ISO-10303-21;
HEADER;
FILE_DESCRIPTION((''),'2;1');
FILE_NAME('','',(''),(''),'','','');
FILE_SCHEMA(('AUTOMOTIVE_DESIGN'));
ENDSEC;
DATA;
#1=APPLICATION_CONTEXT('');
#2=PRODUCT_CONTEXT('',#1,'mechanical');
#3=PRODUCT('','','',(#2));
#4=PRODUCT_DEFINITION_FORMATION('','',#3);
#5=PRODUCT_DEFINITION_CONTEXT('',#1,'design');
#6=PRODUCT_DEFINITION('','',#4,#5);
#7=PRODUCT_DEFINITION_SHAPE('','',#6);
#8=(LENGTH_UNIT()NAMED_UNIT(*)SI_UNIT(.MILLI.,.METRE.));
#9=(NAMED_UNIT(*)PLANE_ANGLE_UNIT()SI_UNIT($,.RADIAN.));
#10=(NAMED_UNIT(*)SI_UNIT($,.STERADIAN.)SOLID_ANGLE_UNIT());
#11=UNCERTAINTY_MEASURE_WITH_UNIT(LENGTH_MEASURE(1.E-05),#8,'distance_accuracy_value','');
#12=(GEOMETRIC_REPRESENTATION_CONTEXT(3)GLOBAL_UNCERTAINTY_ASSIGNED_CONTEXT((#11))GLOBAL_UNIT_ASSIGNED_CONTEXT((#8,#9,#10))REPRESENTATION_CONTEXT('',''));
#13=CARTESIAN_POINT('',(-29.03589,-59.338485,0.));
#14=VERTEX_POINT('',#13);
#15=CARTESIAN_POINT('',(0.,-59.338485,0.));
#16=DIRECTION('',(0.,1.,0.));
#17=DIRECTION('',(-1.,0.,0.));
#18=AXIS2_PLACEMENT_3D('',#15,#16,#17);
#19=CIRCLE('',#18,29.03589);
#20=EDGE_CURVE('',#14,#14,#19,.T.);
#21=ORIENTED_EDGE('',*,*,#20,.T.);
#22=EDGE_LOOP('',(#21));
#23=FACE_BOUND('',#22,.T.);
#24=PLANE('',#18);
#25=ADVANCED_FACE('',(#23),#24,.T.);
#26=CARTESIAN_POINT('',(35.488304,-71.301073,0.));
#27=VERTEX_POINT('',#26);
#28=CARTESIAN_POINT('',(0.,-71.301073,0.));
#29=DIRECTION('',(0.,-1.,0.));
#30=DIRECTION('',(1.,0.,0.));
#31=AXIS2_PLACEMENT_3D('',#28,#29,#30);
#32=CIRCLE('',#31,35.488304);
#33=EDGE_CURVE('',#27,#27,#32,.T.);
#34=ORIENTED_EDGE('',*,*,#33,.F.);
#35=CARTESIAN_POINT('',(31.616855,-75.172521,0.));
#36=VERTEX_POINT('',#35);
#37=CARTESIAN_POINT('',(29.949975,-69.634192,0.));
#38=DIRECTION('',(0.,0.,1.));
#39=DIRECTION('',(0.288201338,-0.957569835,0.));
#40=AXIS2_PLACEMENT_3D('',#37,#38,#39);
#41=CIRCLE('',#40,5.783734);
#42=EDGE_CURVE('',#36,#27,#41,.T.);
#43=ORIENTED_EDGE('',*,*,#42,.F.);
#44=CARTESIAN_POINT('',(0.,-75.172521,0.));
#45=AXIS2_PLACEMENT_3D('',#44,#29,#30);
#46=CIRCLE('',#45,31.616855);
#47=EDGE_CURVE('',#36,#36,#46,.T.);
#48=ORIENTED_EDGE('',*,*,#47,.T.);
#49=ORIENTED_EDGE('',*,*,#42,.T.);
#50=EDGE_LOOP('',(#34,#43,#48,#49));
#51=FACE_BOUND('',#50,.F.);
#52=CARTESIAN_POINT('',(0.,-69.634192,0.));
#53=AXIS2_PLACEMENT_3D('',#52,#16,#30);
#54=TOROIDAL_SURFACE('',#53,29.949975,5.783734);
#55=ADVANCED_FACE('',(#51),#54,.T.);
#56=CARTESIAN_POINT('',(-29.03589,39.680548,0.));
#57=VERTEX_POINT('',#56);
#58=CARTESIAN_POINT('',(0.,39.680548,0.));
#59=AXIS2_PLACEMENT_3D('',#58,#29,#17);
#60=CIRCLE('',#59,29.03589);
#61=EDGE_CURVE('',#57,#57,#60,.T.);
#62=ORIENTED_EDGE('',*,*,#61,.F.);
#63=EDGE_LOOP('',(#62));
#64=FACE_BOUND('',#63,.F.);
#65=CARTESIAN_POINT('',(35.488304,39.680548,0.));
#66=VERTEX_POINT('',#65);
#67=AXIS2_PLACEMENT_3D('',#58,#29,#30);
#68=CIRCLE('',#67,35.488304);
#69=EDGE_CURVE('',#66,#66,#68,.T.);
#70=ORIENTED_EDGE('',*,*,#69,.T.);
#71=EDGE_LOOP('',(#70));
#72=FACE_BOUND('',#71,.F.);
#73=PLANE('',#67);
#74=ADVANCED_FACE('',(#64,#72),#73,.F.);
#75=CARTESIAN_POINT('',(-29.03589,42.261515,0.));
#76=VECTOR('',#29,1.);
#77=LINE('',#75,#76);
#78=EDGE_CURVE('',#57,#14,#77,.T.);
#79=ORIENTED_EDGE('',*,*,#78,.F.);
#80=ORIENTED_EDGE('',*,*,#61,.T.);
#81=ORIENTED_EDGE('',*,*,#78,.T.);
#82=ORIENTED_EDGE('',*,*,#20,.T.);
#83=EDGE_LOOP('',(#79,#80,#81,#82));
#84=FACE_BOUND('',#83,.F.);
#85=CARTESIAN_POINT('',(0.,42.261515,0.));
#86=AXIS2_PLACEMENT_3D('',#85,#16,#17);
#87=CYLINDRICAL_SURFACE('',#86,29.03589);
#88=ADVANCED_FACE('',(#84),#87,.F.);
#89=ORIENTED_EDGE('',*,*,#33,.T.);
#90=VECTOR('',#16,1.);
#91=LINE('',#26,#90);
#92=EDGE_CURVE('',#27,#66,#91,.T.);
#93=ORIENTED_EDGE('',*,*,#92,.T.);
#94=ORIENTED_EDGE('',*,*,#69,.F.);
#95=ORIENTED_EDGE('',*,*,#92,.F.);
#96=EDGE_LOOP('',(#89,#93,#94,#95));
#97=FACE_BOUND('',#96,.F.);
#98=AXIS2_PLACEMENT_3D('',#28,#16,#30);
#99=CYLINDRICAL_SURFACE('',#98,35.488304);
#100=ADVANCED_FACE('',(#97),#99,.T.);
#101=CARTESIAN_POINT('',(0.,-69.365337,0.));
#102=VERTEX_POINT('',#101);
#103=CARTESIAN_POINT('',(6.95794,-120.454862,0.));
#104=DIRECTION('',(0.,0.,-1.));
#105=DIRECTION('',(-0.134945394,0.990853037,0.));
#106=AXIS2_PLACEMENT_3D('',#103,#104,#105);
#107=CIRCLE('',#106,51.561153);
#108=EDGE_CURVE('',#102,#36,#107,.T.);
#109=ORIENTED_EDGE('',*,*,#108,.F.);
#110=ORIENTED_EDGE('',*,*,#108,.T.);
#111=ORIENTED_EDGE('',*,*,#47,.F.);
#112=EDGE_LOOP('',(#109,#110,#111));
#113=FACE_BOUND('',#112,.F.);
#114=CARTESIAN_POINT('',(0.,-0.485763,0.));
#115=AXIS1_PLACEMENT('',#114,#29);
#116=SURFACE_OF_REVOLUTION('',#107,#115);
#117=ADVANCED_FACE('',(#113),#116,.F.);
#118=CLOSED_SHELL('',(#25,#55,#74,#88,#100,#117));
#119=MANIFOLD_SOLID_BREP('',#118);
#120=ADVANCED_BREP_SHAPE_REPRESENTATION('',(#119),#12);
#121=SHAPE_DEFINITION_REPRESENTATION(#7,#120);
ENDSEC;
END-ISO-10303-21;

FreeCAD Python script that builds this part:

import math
import FreeCAD as App
import Part
import Sketcher
Q = App.Units.Quantity

doc = App.newDocument("Part")
body = doc.addObject("PartDesign::Body", "Body")

sketch1 = doc.addObject("Sketcher::SketchObject", "Sketch")
body.addObject(sketch1)
sketch1.AttachmentSupport = (doc.XY_Plane, [""])
sketch1.MapMode = "FlatFace"
sketch1.addGeometry([
    Part.LineSegment(App.Vector(0, 42.3, 0), App.Vector(0, -69.4, 0)),
    Part.ArcOfCircle(Part.Circle(App.Vector(7, -120.5, 0), App.Vector(0, 0, 1), 51.6), math.radians(61), math.radians(98)),
    Part.ArcOfCircle(Part.Circle(App.Vector(29.9, -69.6, 0), App.Vector(0, 0, 1), 5.8), math.radians(-73), math.radians(-17)),
    Part.LineSegment(App.Vector(35.5, -71.3, 0), App.Vector(35.5, 39.7, 0)),
    Part.LineSegment(App.Vector(35.5, 39.7, 0), App.Vector(29, 39.7, 0)),
    Part.LineSegment(App.Vector(29, 39.7, 0), App.Vector(29, 42.3, 0)),
    Part.LineSegment(App.Vector(29, 42.3, 0), App.Vector(0, 42.3, 0)),
], False)
sketch1.addConstraint([
    Sketcher.Constraint("Coincident", 0, 2, 1, 2),
    Sketcher.Constraint("Coincident", 1, 1, 2, 1),
    Sketcher.Constraint("Coincident", 2, 2, 3, 1),
    Sketcher.Constraint("Coincident", 3, 2, 4, 1),
    Sketcher.Constraint("Coincident", 4, 2, 5, 1),
    Sketcher.Constraint("Coincident", 5, 2, 6, 1),
    Sketcher.Constraint("Coincident", 6, 2, 0, 1),
    Sketcher.Constraint("Vertical", 0),
    Sketcher.Constraint("Vertical", 3),
    Sketcher.Constraint("Horizontal", 4),
    Sketcher.Constraint("Vertical", 5),
    Sketcher.Constraint("Horizontal", 6),
    Sketcher.Constraint("PointOnObject", 0, 2, -2),
    Sketcher.Constraint("Radius", 1, 51.561153),
    Sketcher.Constraint("Radius", 2, 5.783734),
    Sketcher.Constraint("DistanceX", 6, 2, 6, 1, 29.03589),
    Sketcher.Constraint("DistanceY", 0, 2, 0, 1, 111.626852),
    Sketcher.Constraint("DistanceY", 3, 1, 3, 2, 110.981621),
    Sketcher.Constraint("DistanceX", 4, 2, 4, 1, 6.452414),
    Sketcher.Constraint("DistanceY", 5, 1, 5, 2, 2.580967),
    Sketcher.Constraint("DistanceX", -1, 1, 1, 3, 6.95794),
    Sketcher.Constraint("DistanceY", 1, 3, -1, 1, 120.454862),
    Sketcher.Constraint("DistanceY", 2, 3, -1, 1, 69.634192),
])
revolution = doc.addObject("PartDesign::Revolution", "Revolution")
body.addObject(revolution)
revolution.Profile = sketch1
revolution.ReferenceAxis = (sketch1, ["V_Axis"])
revolution.Angle = 360

sketch2 = doc.addObject("Sketcher::SketchObject", "Sketch001")
body.addObject(sketch2)
sketch2.AttachmentSupport = (doc.XZ_Plane, [""])
sketch2.MapMode = "FlatFace"
sketch2.AttachmentOffset = App.Placement(App.Vector(0, 0, -42.261515), App.Rotation())
sketch2.addGeometry(Part.Circle(App.Vector(0, 0, 0), App.Vector(0, 0, 1), 29), False)
sketch2.addConstraint([
    Sketcher.Constraint("Coincident", 0, 3, -1, 1),
    Sketcher.Constraint("Diameter", 0, 58.07178),
])
pocket1 = doc.addObject("PartDesign::Pocket", "Pocket")
body.addObject(pocket1)
pocket1.Profile = sketch2
pocket1.Length = Q("4 in")
pocket1.Reversed = True

doc.recompute()
